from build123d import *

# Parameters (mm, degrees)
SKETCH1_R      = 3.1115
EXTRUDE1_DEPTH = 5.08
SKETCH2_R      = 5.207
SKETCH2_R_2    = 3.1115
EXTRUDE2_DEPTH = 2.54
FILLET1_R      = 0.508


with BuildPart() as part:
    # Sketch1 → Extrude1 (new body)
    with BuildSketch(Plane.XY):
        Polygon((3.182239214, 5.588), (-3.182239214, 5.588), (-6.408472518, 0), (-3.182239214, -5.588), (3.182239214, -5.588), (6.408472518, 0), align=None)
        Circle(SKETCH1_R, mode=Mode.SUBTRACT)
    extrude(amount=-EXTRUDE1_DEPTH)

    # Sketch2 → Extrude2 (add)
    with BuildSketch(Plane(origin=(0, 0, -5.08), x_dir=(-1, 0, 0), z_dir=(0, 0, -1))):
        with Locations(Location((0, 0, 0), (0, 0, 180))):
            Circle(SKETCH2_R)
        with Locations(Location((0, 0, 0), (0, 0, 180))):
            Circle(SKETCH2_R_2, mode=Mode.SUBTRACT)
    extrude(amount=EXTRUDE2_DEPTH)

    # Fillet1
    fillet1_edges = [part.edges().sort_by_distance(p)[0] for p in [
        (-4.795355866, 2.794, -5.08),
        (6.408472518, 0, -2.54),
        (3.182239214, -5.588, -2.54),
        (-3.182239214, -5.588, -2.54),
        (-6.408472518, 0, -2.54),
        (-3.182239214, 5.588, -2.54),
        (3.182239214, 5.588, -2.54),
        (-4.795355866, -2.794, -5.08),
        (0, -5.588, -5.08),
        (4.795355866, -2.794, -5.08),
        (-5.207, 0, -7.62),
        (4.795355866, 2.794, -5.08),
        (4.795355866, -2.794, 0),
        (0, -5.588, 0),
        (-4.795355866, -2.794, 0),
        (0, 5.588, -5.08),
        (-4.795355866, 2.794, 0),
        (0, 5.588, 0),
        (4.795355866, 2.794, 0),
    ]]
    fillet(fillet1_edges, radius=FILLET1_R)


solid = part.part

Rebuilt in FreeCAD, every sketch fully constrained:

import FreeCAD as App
import Part
import Sketcher

V = App.Vector
Q = App.Units.Quantity


def edges_at(feature, points):
    """Names of the edges that pass closest to the given points."""
    edges = feature.Shape.Edges
    near = lambda p: min(range(len(edges)), key=lambda i: edges[i].distToShape(Part.Vertex(*p))[0])
    return sorted({f"Edge{near(p) + 1}" for p in points})


def add_polygon(sketch, points):
    """Adds a closed chain of lines whose ends are joined by coincident constraints."""
    first, n = sketch.GeometryCount, len(points)
    for a, b in zip(points, points[1:] + points[:1]):
        sketch.addGeometry(Part.LineSegment(App.Vector(*a, 0), App.Vector(*b, 0)), False)
    for i in range(n):
        sketch.addConstraint(Sketcher.Constraint("Coincident", first + i, 2, first + (i + 1) % n, 1))

doc = App.newDocument("Part")
params = doc.addObject("Spreadsheet::Sheet", "Params")
for row, (alias, value) in enumerate([
    ("sketch1_diameter", "0.245 in"),
    ("pad1_length", "0.2 in"),
    ("sketch2_diameter", "0.41 in"),
    ("sketch2_diameter2", "0.245 in"),
    ("pad2_length", "0.1 in"),
    ("fillet_radius", "0.02 in"),
], start=1):
    params.set(f"A{row}", alias)
    params.set(f"B{row}", "=" + value)
    params.setAlias(f"B{row}", alias)

body = doc.addObject("PartDesign::Body", "Body")

sketch1 = body.newObject("Sketcher::SketchObject", "Sketch")
sketch1.AttachmentSupport = (doc.getObject("XY_Plane"), [""])
sketch1.MapMode = "FlatFace"
add_polygon(sketch1, [(3.182239, 5.588), (-3.182239, 5.588), (-6.408473, 0), (-3.182239, -5.588), (3.182239, -5.588), (6.408473, 0)])
sketch1.addGeometry(Part.Circle(V(0, 0, 0), V(0, 0, 1), 3.1115), False)
sketch1.addConstraint([
    Sketcher.Constraint("Horizontal", 0),
    Sketcher.Constraint("Horizontal", 3),
    Sketcher.Constraint("Coincident", 6, 3, -1, 1),
    Sketcher.Constraint("Symmetric", 0, 2, 3, 2, -1, 1),
    Sketcher.Constraint("Symmetric", 1, 2, 4, 2, -1, 1),
    Sketcher.Constraint("PointOnObject", 1, 2, -1),
    Sketcher.Constraint("Parallel", 2, 5),
    Sketcher.Constraint("Vertical", 0, 2, 2, 2),
    Sketcher.Constraint("Diameter", 6, Q("0.245 in")),
    Sketcher.Constraint("Angle", 1, Q("-120 deg")),
    Sketcher.Constraint("DistanceY", -1, 1, 0, 2, Q("0.22 in")),
    Sketcher.Constraint("DistanceX", 0, 2, 0, 1, Q("6.364478 mm")),
])
sketch1.setExpression("Constraints[14]", "Params.sketch1_diameter")
pad1 = body.newObject("PartDesign::Pad", "Pad")
pad1.Profile = sketch1
pad1.setExpression("Length", "Params.pad1_length")
pad1.Reversed = True

sketch2 = body.newObject("Sketcher::SketchObject", "Sketch001")
sketch2.AttachmentSupport = (doc.getObject("XY_Plane"), [""])
sketch2.MapMode = "FlatFace"
sketch2.AttachmentOffset = App.Placement(V(0, 0, -0.2 * 25.4), App.Rotation())
sketch2.addGeometry([
    Part.Circle(V(0, 0, 0), V(0, 0, 1), 5.207),
    Part.Circle(V(0, 0, 0), V(0, 0, 1), 3.1115),
], False)
sketch2.addConstraint([
    Sketcher.Constraint("Coincident", 0, 3, -1, 1),
    Sketcher.Constraint("Coincident", 1, 3, -1, 1),
    Sketcher.Constraint("Diameter", 0, Q("0.41 in")),
    Sketcher.Constraint("Diameter", 1, Q("0.245 in")),
])
sketch2.setExpression("Constraints[2]", "Params.sketch2_diameter")
sketch2.setExpression("Constraints[3]", "Params.sketch2_diameter2")
pad2 = body.newObject("PartDesign::Pad", "Pad001")
pad2.Profile = sketch2
pad2.setExpression("Length", "Params.pad2_length")
pad2.Reversed = True
doc.recompute()

fillet = body.newObject("PartDesign::Fillet", "Fillet")
fillet.Base = (pad2, edges_at(pad2, [
    (-4.795, 2.794, -5.08),
    (6.408, 0, -2.54),
    (3.182, -5.588, -2.54),
    (-3.182, -5.588, -2.54),
    (-6.408, 0, -2.54),
    (-3.182, 5.588, -2.54),
    (3.182, 5.588, -2.54),
    (-4.795, -2.794, -5.08),
    (0, -5.588, -5.08),
    (4.795, -2.794, -5.08),
    (-5.207, 0, -7.62),
    (4.795, 2.794, -5.08),
    (4.795, -2.794, 0),
    (0, -5.588, 0),
    (-4.795, -2.794, 0),
    (0, 5.588, -5.08),
    (-4.795, 2.794, 0),
    (0, 5.588, 0),
    (4.795, 2.794, 0),
]))
fillet.setExpression("Radius", "Params.fillet_radius")

doc.recompute()
